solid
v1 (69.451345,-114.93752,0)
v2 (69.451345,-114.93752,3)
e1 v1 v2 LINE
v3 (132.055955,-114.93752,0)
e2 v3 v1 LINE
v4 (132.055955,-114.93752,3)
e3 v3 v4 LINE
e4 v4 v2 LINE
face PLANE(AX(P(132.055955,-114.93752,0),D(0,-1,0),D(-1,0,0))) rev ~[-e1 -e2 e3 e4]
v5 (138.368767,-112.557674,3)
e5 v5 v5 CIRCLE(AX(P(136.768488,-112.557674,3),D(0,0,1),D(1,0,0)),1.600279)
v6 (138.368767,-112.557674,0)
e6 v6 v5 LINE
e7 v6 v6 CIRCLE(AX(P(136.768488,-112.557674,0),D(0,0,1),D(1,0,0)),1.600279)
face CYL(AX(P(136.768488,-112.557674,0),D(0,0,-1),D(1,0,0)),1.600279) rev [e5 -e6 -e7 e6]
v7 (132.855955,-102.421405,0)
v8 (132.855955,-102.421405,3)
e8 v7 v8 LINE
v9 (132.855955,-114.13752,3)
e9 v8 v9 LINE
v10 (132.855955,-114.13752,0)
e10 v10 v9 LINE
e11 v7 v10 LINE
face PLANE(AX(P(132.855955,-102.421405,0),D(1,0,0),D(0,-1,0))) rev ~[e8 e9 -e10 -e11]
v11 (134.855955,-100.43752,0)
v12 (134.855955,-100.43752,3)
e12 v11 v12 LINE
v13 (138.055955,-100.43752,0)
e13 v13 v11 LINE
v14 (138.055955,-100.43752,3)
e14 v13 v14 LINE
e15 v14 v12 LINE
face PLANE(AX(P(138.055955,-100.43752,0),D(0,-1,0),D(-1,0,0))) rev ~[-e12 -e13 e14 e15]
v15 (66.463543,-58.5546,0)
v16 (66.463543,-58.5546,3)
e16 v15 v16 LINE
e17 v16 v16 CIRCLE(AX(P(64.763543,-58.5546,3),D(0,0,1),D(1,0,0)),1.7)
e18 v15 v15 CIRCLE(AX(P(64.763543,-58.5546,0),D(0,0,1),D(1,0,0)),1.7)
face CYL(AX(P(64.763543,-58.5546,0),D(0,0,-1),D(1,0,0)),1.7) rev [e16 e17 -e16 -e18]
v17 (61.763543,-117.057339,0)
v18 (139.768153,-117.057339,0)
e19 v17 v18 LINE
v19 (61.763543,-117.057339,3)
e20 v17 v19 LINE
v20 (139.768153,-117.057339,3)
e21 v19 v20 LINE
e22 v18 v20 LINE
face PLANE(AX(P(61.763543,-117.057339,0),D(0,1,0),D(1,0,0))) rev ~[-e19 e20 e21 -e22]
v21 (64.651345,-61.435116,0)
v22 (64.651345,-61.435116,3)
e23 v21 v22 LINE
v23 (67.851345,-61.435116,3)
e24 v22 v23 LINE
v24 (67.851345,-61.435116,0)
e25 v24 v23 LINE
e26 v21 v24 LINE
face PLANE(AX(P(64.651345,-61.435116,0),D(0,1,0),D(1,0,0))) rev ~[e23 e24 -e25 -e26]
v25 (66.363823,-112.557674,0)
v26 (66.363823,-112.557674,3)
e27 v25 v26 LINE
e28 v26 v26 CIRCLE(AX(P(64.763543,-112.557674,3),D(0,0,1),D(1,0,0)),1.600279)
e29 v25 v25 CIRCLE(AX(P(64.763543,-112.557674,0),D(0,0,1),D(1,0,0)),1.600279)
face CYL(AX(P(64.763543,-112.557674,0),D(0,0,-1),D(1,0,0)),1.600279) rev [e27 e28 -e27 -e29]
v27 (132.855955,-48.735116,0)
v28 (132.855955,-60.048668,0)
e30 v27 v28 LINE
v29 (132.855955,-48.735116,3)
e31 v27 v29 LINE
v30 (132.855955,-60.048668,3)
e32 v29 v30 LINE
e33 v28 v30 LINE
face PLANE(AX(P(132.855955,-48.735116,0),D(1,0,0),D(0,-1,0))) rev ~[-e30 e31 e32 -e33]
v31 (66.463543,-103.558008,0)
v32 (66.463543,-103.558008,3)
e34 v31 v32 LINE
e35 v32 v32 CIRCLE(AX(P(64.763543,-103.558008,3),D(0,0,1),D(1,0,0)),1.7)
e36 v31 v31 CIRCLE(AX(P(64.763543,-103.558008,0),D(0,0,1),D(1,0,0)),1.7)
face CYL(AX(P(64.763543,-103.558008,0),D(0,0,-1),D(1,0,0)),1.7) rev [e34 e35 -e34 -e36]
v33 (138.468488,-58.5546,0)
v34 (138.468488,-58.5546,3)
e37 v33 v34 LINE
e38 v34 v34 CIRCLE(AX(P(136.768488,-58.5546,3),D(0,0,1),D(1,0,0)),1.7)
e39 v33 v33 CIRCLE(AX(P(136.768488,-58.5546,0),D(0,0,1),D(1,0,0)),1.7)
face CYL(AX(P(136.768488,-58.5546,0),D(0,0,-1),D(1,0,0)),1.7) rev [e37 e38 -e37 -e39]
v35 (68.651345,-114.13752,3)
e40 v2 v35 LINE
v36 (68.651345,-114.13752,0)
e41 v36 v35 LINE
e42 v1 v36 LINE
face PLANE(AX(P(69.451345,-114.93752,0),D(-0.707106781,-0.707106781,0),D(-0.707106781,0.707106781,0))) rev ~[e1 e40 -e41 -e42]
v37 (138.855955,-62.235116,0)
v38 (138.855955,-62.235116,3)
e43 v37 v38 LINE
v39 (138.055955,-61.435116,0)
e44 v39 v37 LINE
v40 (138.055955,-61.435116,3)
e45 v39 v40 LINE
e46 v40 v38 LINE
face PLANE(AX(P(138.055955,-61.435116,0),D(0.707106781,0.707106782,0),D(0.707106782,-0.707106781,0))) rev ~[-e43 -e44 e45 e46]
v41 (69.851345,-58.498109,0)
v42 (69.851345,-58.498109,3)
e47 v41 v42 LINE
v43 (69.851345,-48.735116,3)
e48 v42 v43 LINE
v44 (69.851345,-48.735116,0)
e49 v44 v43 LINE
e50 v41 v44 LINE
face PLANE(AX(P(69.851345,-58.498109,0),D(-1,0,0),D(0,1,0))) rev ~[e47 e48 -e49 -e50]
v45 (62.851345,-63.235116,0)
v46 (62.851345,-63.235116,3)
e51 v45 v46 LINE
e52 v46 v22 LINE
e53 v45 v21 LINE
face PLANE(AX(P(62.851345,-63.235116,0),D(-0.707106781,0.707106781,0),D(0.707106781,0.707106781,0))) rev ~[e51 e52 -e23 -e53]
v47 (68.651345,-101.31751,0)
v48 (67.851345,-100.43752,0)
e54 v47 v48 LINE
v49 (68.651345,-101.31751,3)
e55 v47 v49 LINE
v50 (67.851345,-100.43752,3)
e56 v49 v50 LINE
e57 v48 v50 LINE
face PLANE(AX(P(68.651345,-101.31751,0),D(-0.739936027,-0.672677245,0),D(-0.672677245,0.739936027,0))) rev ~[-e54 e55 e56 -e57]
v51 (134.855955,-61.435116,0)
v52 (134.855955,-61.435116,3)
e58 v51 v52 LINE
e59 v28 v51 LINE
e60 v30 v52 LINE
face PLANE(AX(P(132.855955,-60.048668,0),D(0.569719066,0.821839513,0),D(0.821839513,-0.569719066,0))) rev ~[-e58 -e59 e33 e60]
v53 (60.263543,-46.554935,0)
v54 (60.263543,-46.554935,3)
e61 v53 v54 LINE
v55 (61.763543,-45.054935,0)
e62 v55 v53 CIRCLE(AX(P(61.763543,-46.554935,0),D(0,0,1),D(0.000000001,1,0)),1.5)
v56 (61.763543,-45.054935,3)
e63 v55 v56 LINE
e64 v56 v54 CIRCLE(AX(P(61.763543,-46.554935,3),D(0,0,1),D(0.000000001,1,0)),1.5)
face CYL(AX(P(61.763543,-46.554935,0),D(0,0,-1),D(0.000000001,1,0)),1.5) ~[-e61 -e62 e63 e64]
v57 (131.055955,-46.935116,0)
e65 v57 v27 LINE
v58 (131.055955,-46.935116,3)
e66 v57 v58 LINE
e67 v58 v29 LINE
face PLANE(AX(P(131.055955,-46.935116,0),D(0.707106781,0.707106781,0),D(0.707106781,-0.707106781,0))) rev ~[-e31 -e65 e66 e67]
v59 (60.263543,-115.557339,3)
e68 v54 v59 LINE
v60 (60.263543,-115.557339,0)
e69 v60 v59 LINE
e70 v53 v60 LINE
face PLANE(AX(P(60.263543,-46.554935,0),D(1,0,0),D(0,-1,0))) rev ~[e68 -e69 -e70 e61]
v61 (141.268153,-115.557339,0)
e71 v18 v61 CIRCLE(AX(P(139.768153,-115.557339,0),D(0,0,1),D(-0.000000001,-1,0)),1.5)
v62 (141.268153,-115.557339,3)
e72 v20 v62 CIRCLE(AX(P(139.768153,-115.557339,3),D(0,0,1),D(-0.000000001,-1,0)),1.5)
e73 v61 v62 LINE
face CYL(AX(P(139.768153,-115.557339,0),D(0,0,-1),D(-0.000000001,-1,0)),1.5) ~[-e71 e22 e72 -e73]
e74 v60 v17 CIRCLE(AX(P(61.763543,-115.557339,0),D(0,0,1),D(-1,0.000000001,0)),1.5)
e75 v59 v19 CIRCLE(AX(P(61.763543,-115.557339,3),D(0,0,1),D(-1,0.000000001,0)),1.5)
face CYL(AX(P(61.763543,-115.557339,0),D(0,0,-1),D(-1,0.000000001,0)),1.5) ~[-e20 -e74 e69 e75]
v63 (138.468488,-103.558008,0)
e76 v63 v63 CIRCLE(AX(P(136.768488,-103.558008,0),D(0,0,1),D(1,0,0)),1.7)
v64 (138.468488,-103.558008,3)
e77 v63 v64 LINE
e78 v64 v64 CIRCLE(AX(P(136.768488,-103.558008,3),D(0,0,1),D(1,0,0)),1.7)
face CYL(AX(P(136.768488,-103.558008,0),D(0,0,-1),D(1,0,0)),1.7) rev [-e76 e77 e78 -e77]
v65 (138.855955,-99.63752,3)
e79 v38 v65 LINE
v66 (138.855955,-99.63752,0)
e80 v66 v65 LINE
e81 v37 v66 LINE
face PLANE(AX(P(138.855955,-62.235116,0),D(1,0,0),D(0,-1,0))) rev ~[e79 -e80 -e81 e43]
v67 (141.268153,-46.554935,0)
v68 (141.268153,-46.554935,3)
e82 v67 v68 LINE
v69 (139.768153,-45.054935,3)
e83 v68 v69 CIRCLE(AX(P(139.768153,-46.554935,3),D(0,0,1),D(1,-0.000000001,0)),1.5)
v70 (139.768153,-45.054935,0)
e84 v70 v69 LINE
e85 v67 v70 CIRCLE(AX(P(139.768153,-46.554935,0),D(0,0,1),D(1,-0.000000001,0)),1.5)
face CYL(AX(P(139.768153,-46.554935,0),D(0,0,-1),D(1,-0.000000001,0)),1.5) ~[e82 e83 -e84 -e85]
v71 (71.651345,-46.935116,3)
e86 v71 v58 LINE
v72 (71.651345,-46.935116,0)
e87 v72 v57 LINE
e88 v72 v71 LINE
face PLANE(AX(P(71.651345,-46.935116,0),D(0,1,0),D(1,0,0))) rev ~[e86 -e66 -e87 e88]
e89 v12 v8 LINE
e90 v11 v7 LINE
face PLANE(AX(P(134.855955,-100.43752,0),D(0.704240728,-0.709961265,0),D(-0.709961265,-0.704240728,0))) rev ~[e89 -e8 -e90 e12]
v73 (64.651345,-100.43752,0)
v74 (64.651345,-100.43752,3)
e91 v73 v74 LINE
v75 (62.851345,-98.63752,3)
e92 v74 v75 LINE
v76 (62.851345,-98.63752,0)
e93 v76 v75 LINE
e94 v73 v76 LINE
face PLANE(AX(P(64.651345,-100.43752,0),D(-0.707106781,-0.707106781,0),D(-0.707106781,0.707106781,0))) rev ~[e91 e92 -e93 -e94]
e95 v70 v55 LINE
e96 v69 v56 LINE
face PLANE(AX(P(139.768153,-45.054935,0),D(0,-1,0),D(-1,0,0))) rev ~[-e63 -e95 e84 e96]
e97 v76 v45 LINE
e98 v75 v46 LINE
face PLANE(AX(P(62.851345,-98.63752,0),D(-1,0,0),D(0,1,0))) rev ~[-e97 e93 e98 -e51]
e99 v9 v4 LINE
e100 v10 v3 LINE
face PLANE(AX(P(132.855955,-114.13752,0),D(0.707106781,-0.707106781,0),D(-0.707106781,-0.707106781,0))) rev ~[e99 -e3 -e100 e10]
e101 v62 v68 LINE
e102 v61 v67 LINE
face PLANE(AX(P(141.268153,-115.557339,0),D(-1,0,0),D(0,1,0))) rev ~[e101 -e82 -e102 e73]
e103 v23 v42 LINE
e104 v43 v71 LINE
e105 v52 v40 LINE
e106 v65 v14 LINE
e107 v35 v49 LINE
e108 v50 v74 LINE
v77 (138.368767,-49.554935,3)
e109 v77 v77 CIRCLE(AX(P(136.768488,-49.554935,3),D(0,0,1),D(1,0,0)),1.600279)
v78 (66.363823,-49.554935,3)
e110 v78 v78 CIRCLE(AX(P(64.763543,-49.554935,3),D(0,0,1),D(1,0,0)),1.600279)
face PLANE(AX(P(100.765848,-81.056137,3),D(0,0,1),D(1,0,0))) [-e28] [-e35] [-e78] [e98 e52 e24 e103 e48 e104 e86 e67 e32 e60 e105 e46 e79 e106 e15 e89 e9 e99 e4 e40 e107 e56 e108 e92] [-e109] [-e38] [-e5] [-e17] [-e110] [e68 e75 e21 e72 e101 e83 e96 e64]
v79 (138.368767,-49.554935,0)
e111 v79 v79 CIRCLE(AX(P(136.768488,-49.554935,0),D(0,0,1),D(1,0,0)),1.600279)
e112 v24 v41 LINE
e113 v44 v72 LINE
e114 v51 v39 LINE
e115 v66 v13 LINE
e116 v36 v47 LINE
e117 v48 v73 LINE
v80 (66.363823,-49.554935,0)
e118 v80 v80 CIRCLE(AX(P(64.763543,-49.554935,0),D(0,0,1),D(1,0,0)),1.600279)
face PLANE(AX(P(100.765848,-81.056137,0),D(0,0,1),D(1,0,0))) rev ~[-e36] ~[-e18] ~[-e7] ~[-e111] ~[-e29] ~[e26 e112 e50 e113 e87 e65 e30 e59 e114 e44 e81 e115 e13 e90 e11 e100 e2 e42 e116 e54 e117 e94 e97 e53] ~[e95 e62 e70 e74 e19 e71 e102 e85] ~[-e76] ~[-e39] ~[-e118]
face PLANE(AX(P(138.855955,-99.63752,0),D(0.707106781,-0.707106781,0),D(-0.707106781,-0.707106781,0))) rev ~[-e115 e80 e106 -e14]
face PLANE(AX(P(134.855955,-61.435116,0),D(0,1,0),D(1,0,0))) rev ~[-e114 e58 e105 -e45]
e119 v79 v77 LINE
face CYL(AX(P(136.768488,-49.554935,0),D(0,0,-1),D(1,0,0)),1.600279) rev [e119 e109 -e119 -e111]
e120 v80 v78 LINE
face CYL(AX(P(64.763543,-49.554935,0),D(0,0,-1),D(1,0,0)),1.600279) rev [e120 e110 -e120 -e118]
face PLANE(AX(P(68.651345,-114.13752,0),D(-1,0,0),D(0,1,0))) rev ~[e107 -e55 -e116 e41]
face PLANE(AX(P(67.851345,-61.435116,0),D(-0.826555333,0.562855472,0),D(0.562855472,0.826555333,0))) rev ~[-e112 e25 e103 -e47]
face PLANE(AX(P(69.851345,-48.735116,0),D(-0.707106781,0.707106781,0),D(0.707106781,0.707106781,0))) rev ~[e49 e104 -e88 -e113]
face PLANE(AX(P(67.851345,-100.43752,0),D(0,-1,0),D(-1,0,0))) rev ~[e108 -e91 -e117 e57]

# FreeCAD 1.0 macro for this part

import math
import FreeCAD as App
import Part
import Sketcher
from FreeCAD import Vector


def add_polygon(sketch, points):
    """Adds a closed chain of lines whose ends are joined by coincident constraints."""
    first, n = sketch.GeometryCount, len(points)
    for a, b in zip(points, points[1:] + points[:1]):
        sketch.addGeometry(Part.LineSegment(App.Vector(*a, 0), App.Vector(*b, 0)), False)
    for i in range(n):
        sketch.addConstraint(Sketcher.Constraint("Coincident", first + i, 2, first + (i + 1) % n, 1))

doc = App.newDocument("Part")
body = doc.addObject("PartDesign::Body", "Body")

# Sketch on XY plane
sketch1 = body.newObject("Sketcher::SketchObject", "Sketch")
sketch1.AttachmentSupport = (doc.getObject("XY_Plane"), [""])
sketch1.MapMode = "FlatFace"
sketch1.addGeometry(Part.LineSegment(Vector(60.3, -46.6, 0), Vector(60.3, -115.6, 0)), False)  # 0
sketch1.addGeometry(Part.ArcOfCircle(Part.Circle(Vector(61.8, -115.6, 0), Vector(0, 0, 1), 1.5), math.radians(180), math.radians(270)), False)  # 1
sketch1.addGeometry(Part.LineSegment(Vector(61.8, -117.1, 0), Vector(139.8, -117.1, 0)), False)  # 2
sketch1.addGeometry(Part.ArcOfCircle(Part.Circle(Vector(139.8, -115.6, 0), Vector(0, 0, 1), 1.5), math.radians(-90), math.radians(0)), False)  # 3
sketch1.addGeometry(Part.LineSegment(Vector(141.3, -115.6, 0), Vector(141.3, -46.6, 0)), False)  # 4
sketch1.addGeometry(Part.ArcOfCircle(Part.Circle(Vector(139.8, -46.6, 0), Vector(0, 0, 1), 1.5), math.radians(0), math.radians(90)), False)  # 5
sketch1.addGeometry(Part.LineSegment(Vector(139.8, -45.1, 0), Vector(61.8, -45.1, 0)), False)  # 6
sketch1.addGeometry(Part.ArcOfCircle(Part.Circle(Vector(61.8, -46.6, 0), Vector(0, 0, 1), 1.5), math.radians(90), math.radians(180)), False)  # 7
sketch1.addGeometry(Part.Circle(Vector(64.8, -112.6, 0), Vector(0, 0, 1), 1.6), False)  # 8
sketch1.addGeometry(Part.Circle(Vector(64.8, -103.6, 0), Vector(0, 0, 1), 1.7), False)  # 9
sketch1.addGeometry(Part.Circle(Vector(136.8, -112.6, 0), Vector(0, 0, 1), 1.6), False)  # 10
sketch1.addGeometry(Part.Circle(Vector(136.8, -103.6, 0), Vector(0, 0, 1), 1.7), False)  # 11
add_polygon(sketch1, [(69.9, -48.7), (71.7, -46.9), (131.1, -46.9), (132.9, -48.7), (132.9, -60), (134.9, -61.4), (138.1, -61.4), (138.9, -62.2), (138.9, -99.6), (138.1, -100.4), (134.9, -100.4), (132.9, -102.4), (132.9, -114.1), (132.1, -114.9), (69.5, -114.9), (68.7, -114.1), (68.7, -101.3), (67.9, -100.4), (64.7, -100.4), (62.9, -98.6), (62.9, -63.2), (64.7, -61.4), (67.9, -61.4), (69.9, -58.5)])  # lines 12-35
sketch1.addGeometry(Part.Circle(Vector(64.8, -58.6, 0), Vector(0, 0, 1), 1.7), False)  # 36
sketch1.addGeometry(Part.Circle(Vector(64.8, -49.6, 0), Vector(0, 0, 1), 1.6), False)  # 37
sketch1.addGeometry(Part.Circle(Vector(136.8, -58.6, 0), Vector(0, 0, 1), 1.7), False)  # 38
sketch1.addGeometry(Part.Circle(Vector(136.8, -49.6, 0), Vector(0, 0, 1), 1.6), False)  # 39
sketch1.addConstraint([
    Sketcher.Constraint("Tangent", 0, 2, 1, 1),
    Sketcher.Constraint("Tangent", 1, 2, 2, 1),
    Sketcher.Constraint("Tangent", 2, 2, 3, 1),
    Sketcher.Constraint("Tangent", 3, 2, 4, 1),
    Sketcher.Constraint("Tangent", 4, 2, 5, 1),
    Sketcher.Constraint("Tangent", 5, 2, 6, 1),
    Sketcher.Constraint("Tangent", 6, 2, 7, 1),
    Sketcher.Constraint("Tangent", 7, 2, 0, 1),
    Sketcher.Constraint("Vertical", 0),
    Sketcher.Constraint("Horizontal", 2),
    Sketcher.Constraint("Vertical", 4),
    Sketcher.Constraint("Horizontal", 6),
    Sketcher.Constraint("Horizontal", 13),
    Sketcher.Constraint("Vertical", 15),
    Sketcher.Constraint("Horizontal", 17),
    Sketcher.Constraint("Vertical", 19),
    Sketcher.Constraint("Horizontal", 21),
    Sketcher.Constraint("Vertical", 23),
    Sketcher.Constraint("Horizontal", 25),
    Sketcher.Constraint("Vertical", 27),
    Sketcher.Constraint("Horizontal", 29),
    Sketcher.Constraint("Vertical", 31),
    Sketcher.Constraint("Horizontal", 33),
    Sketcher.Constraint("Vertical", 35),
    Sketcher.Constraint("Equal", 1, 3),
    Sketcher.Constraint("Equal", 3, 5),
    Sketcher.Constraint("Equal", 5, 7),
    Sketcher.Constraint("Equal", 8, 10),
    Sketcher.Constraint("Equal", 9, 11),
    Sketcher.Constraint("Equal", 11, 36),
    Sketcher.Constraint("Equal", 10, 37),
    Sketcher.Constraint("Equal", 36, 38),
    Sketcher.Constraint("Equal", 37, 39),
    Sketcher.Constraint("Perpendicular", 12, 14),
    Sketcher.Constraint("Parallel", 14, 18),
    Sketcher.Constraint("Perpendicular", 18, 20),
    Sketcher.Constraint("Parallel", 20, 24),
    Sketcher.Constraint("Perpendicular", 24, 26),
    Sketcher.Constraint("Parallel", 26, 30),
    Sketcher.Constraint("Perpendicular", 30, 32),
    Sketcher.Constraint("Horizontal", 8, 3, 10, 3),
    Sketcher.Constraint("Horizontal", 9, 3, 11, 3),
    Sketcher.Constraint("Horizontal", 36, 3, 38, 3),
    Sketcher.Constraint("Horizontal", 37, 3, 39, 3),
    Sketcher.Constraint("Horizontal", 23, 2, 26, 2),
    Sketcher.Constraint("Horizontal", 21, 2, 28, 2),
    Sketcher.Constraint("Horizontal", 17, 2, 32, 2),
    Sketcher.Constraint("Horizontal", 14, 2, 35, 2),
    Sketcher.Constraint("Vertical", 8, 3, 9, 3),
    Sketcher.Constraint("Vertical", 10, 3, 11, 3),
    Sketcher.Constraint("Vertical", 9, 3, 36, 3),
    Sketcher.Constraint("Vertical", 36, 3, 37, 3),
    Sketcher.Constraint("Vertical", 11, 3, 38, 3),
    Sketcher.Constraint("Vertical", 38, 3, 39, 3),
    Sketcher.Constraint("Vertical", 17, 2, 20, 2),
    Sketcher.Constraint("Vertical", 16, 2, 21, 2),
    Sketcher.Constraint("Vertical", 15, 2, 22, 2),
    Sketcher.Constraint("Vertical", 29, 2, 32, 2),
    Sketcher.Constraint("Vertical", 28, 2, 33, 2),
    Sketcher.Constraint("Equal", 21, 29),
    Sketcher.Constraint("Equal", 12, 14),
    Sketcher.Constraint("Equal", 20, 24),
    Sketcher.Constraint("Equal", 14, 30),
    Sketcher.Constraint("Diameter", 9, 3.4),
    Sketcher.Constraint("Radius", 1, 1.5),
    Sketcher.Constraint("DistanceX", 17, 1, 17, 2, 3.2),
    Sketcher.Constraint("DistanceX", 1, 3, 8, 3, 3.0),
    Sketcher.Constraint("DistanceY", 37, 3, 7, 3, 3.0),
    Sketcher.Constraint("DistanceX", 15, 2, 16, 2, 2.0),
    Sketcher.Constraint("DistanceX", 16, 2, 18, 2, 4.0),
    Sketcher.Constraint("DistanceX", 29, 2, 27, 2, 4.0),
    Sketcher.Constraint("DistanceX", 30, 2, 28, 2, 5.0),
    Sketcher.Constraint("DistanceX", 33, 2, 34, 2, 2.0),
    Sketcher.Constraint("DistanceY", 16, 2, 14, 2, 12.7),
    Sketcher.Constraint("DistanceY", 26, 2, 28, 2, 13.7),
    Sketcher.Constraint("Diameter", 8, 3.200558),
    Sketcher.Constraint("DistanceX", 2, 1, 2, 2, 78.00461),
    Sketcher.Constraint("DistanceX", 13, 1, 13, 2, 59.40461),
    Sketcher.Constraint("DistanceY", 15, 2, 15, 1, 11.313552),
    Sketcher.Constraint("DistanceY", 27, 1, 27, 2, 12.820011),
    Sketcher.Constraint("DistanceY", 36, 3, -1, 1, 58.5546),
    Sketcher.Constraint("DistanceX", 37, 3, 12, 2, 6.887802),
    Sketcher.Constraint("DistanceY", 9, 3, 27, 2, 2.240498),
    Sketcher.Constraint("Distance", 34, 3.55331),
    Sketcher.Constraint("DistanceY", 0, 2, 0, 1, 69.002404),
    Sketcher.Constraint("DistanceY", 19, 2, 19, 1, 37.402404),
    Sketcher.Constraint("DistanceY", 23, 2, 23, 1, 11.716115),
    Sketcher.Constraint("DistanceY", 1, 3, -1, 1, 115.557339),
    Sketcher.Constraint("DistanceY", 9, 3, -1, 1, 103.558008),
    Sketcher.Constraint("DistanceY", 8, 3, 7, 3, 66.002739),
    Sketcher.Constraint("DistanceX", -1, 1, 1, 3, 61.763543),
    Sketcher.Constraint("DistanceX", -1, 1, 10, 3, 136.768488),
])
pad1 = body.newObject("PartDesign::Pad", "Pad")
pad1.Profile = sketch1
pad1.Length = 3

doc.recompute()
